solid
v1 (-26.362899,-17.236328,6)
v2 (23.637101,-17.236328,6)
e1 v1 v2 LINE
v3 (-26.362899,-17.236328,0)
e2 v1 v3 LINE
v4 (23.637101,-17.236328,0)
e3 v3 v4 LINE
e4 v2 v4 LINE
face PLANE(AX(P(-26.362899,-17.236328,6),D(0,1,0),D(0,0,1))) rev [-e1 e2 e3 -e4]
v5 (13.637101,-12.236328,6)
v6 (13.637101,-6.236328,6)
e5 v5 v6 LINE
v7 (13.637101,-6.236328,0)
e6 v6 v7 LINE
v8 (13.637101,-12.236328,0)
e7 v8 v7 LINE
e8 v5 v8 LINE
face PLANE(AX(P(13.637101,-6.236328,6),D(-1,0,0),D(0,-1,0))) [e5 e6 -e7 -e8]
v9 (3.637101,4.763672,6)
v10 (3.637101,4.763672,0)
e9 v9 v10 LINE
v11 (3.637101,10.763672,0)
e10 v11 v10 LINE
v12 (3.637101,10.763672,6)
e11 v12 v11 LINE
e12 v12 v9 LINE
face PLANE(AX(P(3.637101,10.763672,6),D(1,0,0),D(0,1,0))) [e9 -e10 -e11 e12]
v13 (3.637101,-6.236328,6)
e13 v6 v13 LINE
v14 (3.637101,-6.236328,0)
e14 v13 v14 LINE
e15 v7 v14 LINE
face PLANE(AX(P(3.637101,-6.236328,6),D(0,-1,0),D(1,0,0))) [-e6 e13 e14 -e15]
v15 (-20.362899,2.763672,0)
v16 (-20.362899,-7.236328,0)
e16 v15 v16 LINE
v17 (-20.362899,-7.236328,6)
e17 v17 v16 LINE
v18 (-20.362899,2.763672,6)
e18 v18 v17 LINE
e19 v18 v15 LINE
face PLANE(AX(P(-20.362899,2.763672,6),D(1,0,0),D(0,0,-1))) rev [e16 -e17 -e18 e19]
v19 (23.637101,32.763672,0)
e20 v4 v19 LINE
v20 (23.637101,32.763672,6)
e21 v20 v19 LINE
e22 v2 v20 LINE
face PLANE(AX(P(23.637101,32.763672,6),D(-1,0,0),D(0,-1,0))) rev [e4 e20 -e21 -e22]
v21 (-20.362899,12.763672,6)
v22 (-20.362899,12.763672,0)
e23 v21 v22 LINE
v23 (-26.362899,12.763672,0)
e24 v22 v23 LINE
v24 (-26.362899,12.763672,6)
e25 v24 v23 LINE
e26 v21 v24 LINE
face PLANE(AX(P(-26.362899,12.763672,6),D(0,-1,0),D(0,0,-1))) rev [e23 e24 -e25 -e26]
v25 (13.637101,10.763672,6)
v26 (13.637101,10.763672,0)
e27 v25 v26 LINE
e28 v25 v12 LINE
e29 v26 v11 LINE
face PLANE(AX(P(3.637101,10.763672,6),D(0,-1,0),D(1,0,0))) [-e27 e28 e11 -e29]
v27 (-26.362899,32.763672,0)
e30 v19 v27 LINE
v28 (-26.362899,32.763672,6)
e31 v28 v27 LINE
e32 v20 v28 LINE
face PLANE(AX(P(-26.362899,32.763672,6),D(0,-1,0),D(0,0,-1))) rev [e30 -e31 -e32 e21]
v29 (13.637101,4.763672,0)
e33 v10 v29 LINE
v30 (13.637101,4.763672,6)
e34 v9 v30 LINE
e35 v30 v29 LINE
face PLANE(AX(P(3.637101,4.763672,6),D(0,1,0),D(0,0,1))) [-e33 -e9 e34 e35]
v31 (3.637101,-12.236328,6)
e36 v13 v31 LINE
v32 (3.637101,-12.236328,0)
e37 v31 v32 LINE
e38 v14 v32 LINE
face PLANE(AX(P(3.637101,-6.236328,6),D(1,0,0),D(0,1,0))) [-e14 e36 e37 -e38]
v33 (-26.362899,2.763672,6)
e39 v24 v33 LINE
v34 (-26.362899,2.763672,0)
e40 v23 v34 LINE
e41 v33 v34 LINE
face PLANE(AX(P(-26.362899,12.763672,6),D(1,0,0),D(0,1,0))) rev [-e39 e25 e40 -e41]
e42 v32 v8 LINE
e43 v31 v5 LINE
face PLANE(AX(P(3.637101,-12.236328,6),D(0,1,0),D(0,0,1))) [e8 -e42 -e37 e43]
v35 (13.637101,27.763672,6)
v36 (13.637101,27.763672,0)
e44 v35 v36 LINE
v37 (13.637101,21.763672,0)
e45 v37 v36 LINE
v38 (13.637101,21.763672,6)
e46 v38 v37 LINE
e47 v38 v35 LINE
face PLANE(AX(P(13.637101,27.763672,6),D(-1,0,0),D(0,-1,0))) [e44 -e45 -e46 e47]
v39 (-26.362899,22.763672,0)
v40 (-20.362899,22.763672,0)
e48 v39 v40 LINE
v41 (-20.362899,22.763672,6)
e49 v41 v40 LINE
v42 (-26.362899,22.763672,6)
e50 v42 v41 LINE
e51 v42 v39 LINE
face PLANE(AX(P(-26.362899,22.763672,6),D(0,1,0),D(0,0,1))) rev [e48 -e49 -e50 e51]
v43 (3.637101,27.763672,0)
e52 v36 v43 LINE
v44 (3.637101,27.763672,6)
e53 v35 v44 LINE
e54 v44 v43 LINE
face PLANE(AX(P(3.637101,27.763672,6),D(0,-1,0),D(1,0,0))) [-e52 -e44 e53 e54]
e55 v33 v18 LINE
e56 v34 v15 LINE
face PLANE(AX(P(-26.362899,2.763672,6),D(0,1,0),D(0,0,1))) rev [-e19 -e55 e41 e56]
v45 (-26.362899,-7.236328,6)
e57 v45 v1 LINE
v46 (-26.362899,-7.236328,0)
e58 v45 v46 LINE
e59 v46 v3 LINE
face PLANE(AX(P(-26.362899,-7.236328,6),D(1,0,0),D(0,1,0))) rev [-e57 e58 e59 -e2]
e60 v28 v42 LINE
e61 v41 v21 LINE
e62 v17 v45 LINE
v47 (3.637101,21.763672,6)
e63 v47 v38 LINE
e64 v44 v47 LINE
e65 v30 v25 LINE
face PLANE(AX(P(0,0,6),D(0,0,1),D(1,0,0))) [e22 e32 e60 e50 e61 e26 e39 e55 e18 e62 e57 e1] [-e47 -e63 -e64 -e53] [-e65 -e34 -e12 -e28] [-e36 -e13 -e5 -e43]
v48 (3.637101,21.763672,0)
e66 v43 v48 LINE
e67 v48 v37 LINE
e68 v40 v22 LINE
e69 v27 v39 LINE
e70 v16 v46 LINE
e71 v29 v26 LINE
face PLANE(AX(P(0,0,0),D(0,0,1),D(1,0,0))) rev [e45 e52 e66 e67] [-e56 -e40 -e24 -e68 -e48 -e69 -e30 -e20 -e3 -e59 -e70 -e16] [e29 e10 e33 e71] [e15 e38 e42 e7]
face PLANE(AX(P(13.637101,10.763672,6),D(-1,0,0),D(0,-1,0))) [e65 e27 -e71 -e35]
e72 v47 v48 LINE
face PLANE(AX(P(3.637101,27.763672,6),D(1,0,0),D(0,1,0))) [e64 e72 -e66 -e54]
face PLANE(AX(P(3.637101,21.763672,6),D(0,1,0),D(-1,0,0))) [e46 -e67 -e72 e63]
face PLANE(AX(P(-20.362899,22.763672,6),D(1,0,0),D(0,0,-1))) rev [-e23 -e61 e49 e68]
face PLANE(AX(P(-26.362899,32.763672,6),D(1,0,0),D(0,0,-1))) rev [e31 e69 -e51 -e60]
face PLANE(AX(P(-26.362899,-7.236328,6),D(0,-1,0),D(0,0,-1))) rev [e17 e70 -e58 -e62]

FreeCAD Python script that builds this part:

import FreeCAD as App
import Part
import Sketcher
Q = App.Units.Quantity


def add_polygon(sketch, points):
    """Adds a closed chain of lines whose ends are joined by coincident constraints."""
    first, n = sketch.GeometryCount, len(points)
    for a, b in zip(points, points[1:] + points[:1]):
        sketch.addGeometry(Part.LineSegment(App.Vector(*a, 0), App.Vector(*b, 0)), False)
    for i in range(n):
        sketch.addConstraint(Sketcher.Constraint("Coincident", first + i, 2, first + (i + 1) % n, 1))

doc = App.newDocument("Part")
body = doc.addObject("PartDesign::Body", "Body")

# Sketch on XY plane
sketch1 = body.newObject("Sketcher::SketchObject", "Sketch")
sketch1.AttachmentSupport = (doc.getObject("XY_Plane"), [""])
sketch1.MapMode = "FlatFace"
add_polygon(sketch1, [(24, 33), (-26, 33), (-26, 23), (-20, 23), (-20, 13), (-26, 13), (-26, 3), (-20, 3), (-20, -7), (-26, -7), (-26, -17), (24, -17)])  # lines 0-11
add_polygon(sketch1, [(4, -12), (4, -6), (14, -6), (14, -12)])  # lines 12-15
add_polygon(sketch1, [(4, 5), (4, 11), (14, 11), (14, 5)])  # lines 16-19
add_polygon(sketch1, [(4, 22), (4, 28), (14, 28), (14, 22)])  # lines 20-23
sketch1.addConstraint([
    Sketcher.Constraint("Horizontal", 0),
    Sketcher.Constraint("Vertical", 1),
    Sketcher.Constraint("Horizontal", 2),
    Sketcher.Constraint("Vertical", 3),
    Sketcher.Constraint("Horizontal", 4),
    Sketcher.Constraint("Vertical", 5),
    Sketcher.Constraint("Horizontal", 6),
    Sketcher.Constraint("Vertical", 7),
    Sketcher.Constraint("Horizontal", 8),
    Sketcher.Constraint("Vertical", 9),
    Sketcher.Constraint("Horizontal", 10),
    Sketcher.Constraint("Vertical", 11),
    Sketcher.Constraint("Vertical", 12),
    Sketcher.Constraint("Horizontal", 13),
    Sketcher.Constraint("Vertical", 14),
    Sketcher.Constraint("Horizontal", 15),
    Sketcher.Constraint("Vertical", 16),
    Sketcher.Constraint("Horizontal", 17),
    Sketcher.Constraint("Vertical", 18),
    Sketcher.Constraint("Horizontal", 19),
    Sketcher.Constraint("Vertical", 20),
    Sketcher.Constraint("Horizontal", 21),
    Sketcher.Constraint("Vertical", 22),
    Sketcher.Constraint("Horizontal", 23),
    Sketcher.Constraint("Vertical", 1, 2, 4, 2),
    Sketcher.Constraint("Vertical", 3, 2, 6, 2),
    Sketcher.Constraint("Vertical", 5, 2, 8, 2),
    Sketcher.Constraint("Vertical", 15, 2, 16, 2),
    Sketcher.Constraint("Vertical", 14, 2, 17, 2),
    Sketcher.Constraint("Vertical", 19, 2, 20, 2),
    Sketcher.Constraint("Vertical", 18, 2, 21, 2),
    Sketcher.Constraint("Equal", 23, 1),
    Sketcher.Constraint("Equal", 1, 3),
    Sketcher.Constraint("Equal", 3, 5),
    Sketcher.Constraint("Equal", 5, 7),
    Sketcher.Constraint("Equal", 7, 9),
    Sketcher.Constraint("Equal", 10, 11),
    Sketcher.Constraint("Equal", 8, 12),
    Sketcher.Constraint("Equal", 14, 16),
    Sketcher.Constraint("Equal", 18, 20),
    Sketcher.Constraint("DistanceX", 0, 2, 0, 1, Q("50 mm")),
    Sketcher.Constraint("DistanceX", 2, 1, 2, 2, Q("6 mm")),
    Sketcher.Constraint("DistanceX", 12, 2, 10, 2, Q("20 mm")),
    Sketcher.Constraint("DistanceY", 10, 2, 12, 2, Q("11 mm")),
    Sketcher.Constraint("DistanceY", 12, 2, 16, 2, Q("17 mm")),
    Sketcher.Constraint("DistanceY", 16, 2, 20, 2, Q("17 mm")),
    Sketcher.Constraint("DistanceX", 0, 2, -1, 1, Q("26.362899 mm")),
    Sketcher.Constraint("DistanceY", -1, 1, 0, 2, Q("32.763672 mm")),
])
pad1 = body.newObject("PartDesign::Pad", "Pad")
pad1.Profile = sketch1
pad1.Length = 6

doc.recompute()
